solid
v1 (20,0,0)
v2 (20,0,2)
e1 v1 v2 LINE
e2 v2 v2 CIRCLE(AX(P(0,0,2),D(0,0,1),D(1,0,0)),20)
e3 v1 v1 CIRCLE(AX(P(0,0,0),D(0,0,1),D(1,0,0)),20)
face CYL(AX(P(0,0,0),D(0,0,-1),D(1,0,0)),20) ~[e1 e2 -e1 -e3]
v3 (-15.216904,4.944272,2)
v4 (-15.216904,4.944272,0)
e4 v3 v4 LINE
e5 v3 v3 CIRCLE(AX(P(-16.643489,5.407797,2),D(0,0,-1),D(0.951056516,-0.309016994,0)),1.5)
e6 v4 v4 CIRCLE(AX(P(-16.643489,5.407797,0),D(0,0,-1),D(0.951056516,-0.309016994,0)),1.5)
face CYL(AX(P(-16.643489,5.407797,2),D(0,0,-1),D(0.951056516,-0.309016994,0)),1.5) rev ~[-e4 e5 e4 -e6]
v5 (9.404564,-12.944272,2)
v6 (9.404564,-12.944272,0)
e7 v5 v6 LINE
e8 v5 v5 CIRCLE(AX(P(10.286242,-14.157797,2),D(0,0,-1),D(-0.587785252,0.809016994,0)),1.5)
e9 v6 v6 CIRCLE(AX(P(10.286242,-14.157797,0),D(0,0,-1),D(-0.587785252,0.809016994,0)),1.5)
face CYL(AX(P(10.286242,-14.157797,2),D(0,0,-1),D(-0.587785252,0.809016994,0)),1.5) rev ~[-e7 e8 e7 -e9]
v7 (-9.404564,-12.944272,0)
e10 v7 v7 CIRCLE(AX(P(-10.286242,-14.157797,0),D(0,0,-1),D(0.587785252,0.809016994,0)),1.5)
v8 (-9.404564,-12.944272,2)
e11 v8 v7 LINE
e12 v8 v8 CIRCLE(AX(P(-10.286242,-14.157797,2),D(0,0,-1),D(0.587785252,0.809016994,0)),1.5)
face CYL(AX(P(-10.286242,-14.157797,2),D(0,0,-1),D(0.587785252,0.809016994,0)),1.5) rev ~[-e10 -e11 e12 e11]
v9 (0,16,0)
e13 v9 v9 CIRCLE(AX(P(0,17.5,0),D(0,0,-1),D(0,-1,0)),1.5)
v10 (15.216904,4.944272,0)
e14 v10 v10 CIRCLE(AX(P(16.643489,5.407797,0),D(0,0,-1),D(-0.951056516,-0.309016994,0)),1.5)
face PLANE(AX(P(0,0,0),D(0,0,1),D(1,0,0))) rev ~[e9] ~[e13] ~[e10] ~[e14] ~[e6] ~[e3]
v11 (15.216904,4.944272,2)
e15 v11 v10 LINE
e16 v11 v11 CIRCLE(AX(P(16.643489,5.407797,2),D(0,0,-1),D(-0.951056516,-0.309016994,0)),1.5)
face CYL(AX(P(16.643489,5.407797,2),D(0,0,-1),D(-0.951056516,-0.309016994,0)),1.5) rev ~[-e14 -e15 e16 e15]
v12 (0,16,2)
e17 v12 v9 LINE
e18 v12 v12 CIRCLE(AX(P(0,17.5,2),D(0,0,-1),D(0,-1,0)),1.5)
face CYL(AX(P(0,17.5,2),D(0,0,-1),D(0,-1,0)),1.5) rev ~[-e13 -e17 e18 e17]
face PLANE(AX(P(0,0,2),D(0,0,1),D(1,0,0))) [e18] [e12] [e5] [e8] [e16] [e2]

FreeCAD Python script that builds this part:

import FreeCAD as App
import Part
import Sketcher

doc = App.newDocument("Part")
body = doc.addObject("PartDesign::Body", "Body")

# Sketch on XY plane
sketch1 = doc.addObject("Sketcher::SketchObject", "Sketch")
body.addObject(sketch1)
sketch1.AttachmentSupport = (doc.XY_Plane, [""])
sketch1.MapMode = "FlatFace"
sketch1.addGeometry(Part.Circle(App.Vector(0, 0, 0), App.Vector(0, 0, 1), 20), False)
sketch1.addConstraint([
    Sketcher.Constraint("Coincident", 0, 3, -1, 1),
    Sketcher.Constraint("Diameter", 0, 40.0),
])
pad1 = doc.addObject("PartDesign::Pad", "Pad")
body.addObject(pad1)
pad1.Profile = sketch1
pad1.Length = 2

# Sketch on XY plane
sketch2 = doc.addObject("Sketcher::SketchObject", "Sketch001")
body.addObject(sketch2)
sketch2.AttachmentSupport = (doc.XY_Plane, [""])
sketch2.MapMode = "FlatFace"
sketch2.AttachmentOffset = App.Placement(App.Vector(0, 0, 2), App.Rotation())
sketch2.addGeometry(Part.Circle(App.Vector(0, 17.5, 0), App.Vector(0, 0, 1), 1.5), False)
sketch2.addConstraint([
    Sketcher.Constraint("PointOnObject", 0, 3, -2),
    Sketcher.Constraint("Diameter", 0, 3.0),
    Sketcher.Constraint("DistanceY", -1, 1, 0, 3, 17.5),
])
doc.recompute()
hole = doc.addObject("PartDesign::Hole", "Hole")
body.addObject(hole)
hole.Profile = sketch2
hole.ThreadType = "None"
hole.Diameter = 3
hole.DepthType = "Dimension"
hole.Depth = 2
hole.DrillPoint = "Flat"
doc.recompute()

polarpattern = doc.addObject("PartDesign::PolarPattern", "PolarPattern")
body.addObject(polarpattern)
polarpattern.Originals = [hole]
polarpattern.Axis = (doc.Z_Axis, [""])
polarpattern.Angle = 360
polarpattern.Occurrences = 5
body.Tip = polarpattern

doc.recompute()
